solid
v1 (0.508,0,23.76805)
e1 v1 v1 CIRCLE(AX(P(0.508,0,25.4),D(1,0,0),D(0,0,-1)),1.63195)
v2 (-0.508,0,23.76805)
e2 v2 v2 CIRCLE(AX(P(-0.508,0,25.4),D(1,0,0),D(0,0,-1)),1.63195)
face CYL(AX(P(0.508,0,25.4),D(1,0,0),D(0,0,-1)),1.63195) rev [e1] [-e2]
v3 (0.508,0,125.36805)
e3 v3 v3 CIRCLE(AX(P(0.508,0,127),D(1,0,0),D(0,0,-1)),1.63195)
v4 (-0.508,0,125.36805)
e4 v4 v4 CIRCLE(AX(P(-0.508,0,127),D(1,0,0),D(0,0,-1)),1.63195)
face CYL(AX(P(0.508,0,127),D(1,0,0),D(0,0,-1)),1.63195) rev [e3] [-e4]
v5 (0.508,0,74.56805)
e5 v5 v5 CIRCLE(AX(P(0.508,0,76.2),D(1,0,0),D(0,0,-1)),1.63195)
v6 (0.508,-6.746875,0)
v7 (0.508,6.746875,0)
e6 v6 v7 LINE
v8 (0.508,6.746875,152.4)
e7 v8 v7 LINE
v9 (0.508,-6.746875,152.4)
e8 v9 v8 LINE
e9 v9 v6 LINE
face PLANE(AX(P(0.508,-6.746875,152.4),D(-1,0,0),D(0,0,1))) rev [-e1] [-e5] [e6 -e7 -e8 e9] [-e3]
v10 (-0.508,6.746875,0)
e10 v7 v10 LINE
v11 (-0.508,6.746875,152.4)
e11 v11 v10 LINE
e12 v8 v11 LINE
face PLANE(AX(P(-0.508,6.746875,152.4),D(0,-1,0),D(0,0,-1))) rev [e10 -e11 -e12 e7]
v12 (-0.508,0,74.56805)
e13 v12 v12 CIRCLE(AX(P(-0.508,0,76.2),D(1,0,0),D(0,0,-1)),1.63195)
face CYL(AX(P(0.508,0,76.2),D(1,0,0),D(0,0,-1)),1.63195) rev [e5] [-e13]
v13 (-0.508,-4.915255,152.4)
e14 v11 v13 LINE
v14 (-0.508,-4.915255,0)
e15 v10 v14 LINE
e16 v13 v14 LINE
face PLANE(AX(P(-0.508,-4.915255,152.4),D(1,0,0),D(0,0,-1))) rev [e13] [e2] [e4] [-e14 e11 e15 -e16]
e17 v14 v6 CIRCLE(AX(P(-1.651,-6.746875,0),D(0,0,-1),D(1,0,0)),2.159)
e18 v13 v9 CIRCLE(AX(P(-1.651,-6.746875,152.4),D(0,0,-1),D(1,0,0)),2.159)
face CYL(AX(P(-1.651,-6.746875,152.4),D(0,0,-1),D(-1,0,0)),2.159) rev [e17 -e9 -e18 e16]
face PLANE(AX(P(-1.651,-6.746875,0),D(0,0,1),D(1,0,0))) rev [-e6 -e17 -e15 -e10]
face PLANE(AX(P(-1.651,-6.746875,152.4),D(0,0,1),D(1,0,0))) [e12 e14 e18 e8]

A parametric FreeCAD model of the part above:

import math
import FreeCAD as App
import Part
import Sketcher
Q = App.Units.Quantity

doc = App.newDocument("Part")
body = doc.addObject("PartDesign::Body", "Body")

sketch1 = doc.addObject("Sketcher::SketchObject", "Sketch")
body.addObject(sketch1)
sketch1.AttachmentSupport = (doc.XY_Plane, [""])
sketch1.MapMode = "FlatFace"
sketch1.addGeometry([
    Part.LineSegment(App.Vector(-0.5, 6.7, 0), App.Vector(-0.5, -4.9, 0)),
    Part.ArcOfCircle(Part.Circle(App.Vector(-1.7, -6.7, 0), App.Vector(0, 0, 1), 2.2), math.radians(0), math.radians(58)),
    Part.LineSegment(App.Vector(0.5, -6.7, 0), App.Vector(0.5, 6.7, 0)),
    Part.LineSegment(App.Vector(0.5, 6.7, 0), App.Vector(-0.5, 6.7, 0)),
], False)
sketch1.addConstraint([
    Sketcher.Constraint("Coincident", 0, 2, 1, 2),
    Sketcher.Constraint("Tangent", 1, 1, 2, 1),
    Sketcher.Constraint("Coincident", 2, 2, 3, 1),
    Sketcher.Constraint("Coincident", 3, 2, 0, 1),
    Sketcher.Constraint("Vertical", 0),
    Sketcher.Constraint("Vertical", 2),
    Sketcher.Constraint("Horizontal", 3),
    Sketcher.Constraint("Symmetric", 1, 1, 3, 2, -1, 1),
    Sketcher.Constraint("Radius", 1, Q("0.085 in")),
    Sketcher.Constraint("DistanceX", 3, 2, 3, 1, Q("0.04 in")),
    Sketcher.Constraint("DistanceY", 2, 1, 2, 2, Q("0.53125 in")),
])
pad1 = doc.addObject("PartDesign::Pad", "Pad")
body.addObject(pad1)
pad1.Profile = sketch1
pad1.Length = Q("6 in")

sketch2 = doc.addObject("Sketcher::SketchObject", "Sketch001")
body.addObject(sketch2)
sketch2.AttachmentSupport = (doc.YZ_Plane, [""])
sketch2.MapMode = "FlatFace"
sketch2.AttachmentOffset = App.Placement(App.Vector(0, 0, 0.02 * 25.4), App.Rotation())
sketch2.addGeometry([
    Part.Circle(App.Vector(0, 25.4, 0), App.Vector(0, 0, 1), 1.6),
    Part.Circle(App.Vector(0, 76.2, 0), App.Vector(0, 0, 1), 1.6),
    Part.Circle(App.Vector(0, 177.8, 0), App.Vector(0, 0, 1), 1.6),
    Part.Circle(App.Vector(0, 127, 0), App.Vector(0, 0, 1), 1.6),
    Part.Circle(App.Vector(0, 228.6, 0), App.Vector(0, 0, 1), 1.6),
    Part.Circle(App.Vector(0, 279.4, 0), App.Vector(0, 0, 1), 1.6),
], False)
sketch2.addConstraint([
    Sketcher.Constraint("Equal", 0, 1),
    Sketcher.Constraint("Equal", 1, 2),
    Sketcher.Constraint("Equal", 2, 3),
    Sketcher.Constraint("Equal", 3, 4),
    Sketcher.Constraint("Equal", 4, 5),
    Sketcher.Constraint("PointOnObject", 0, 3, -2),
    Sketcher.Constraint("PointOnObject", 1, 3, -2),
    Sketcher.Constraint("PointOnObject", 2, 3, -2),
    Sketcher.Constraint("PointOnObject", 3, 3, -2),
    Sketcher.Constraint("PointOnObject", 4, 3, -2),
    Sketcher.Constraint("PointOnObject", 5, 3, -2),
    Sketcher.Constraint("DistanceY", -1, 1, 0, 3, Q("1 in")),
    Sketcher.Constraint("DistanceY", -1, 1, 1, 3, Q("3 in")),
    Sketcher.Constraint("DistanceY", -1, 1, 2, 3, Q("7 in")),
    Sketcher.Constraint("DistanceY", -1, 1, 3, 3, Q("5 in")),
    Sketcher.Constraint("DistanceY", -1, 1, 4, 3, Q("9 in")),
    Sketcher.Constraint("DistanceY", -1, 1, 5, 3, Q("11 in")),
    Sketcher.Constraint("Diameter", 0, Q("0.1285 in")),
])
doc.recompute()
hole = doc.addObject("PartDesign::Hole", "Hole")
body.addObject(hole)
hole.Profile = sketch2
hole.ThreadType = "None"
hole.Diameter = Q("0.1285 in")
hole.DepthType = "Dimension"
hole.Depth = Q("0.06 in")
hole.DrillPoint = "Angled"
hole.DrillPointAngle = 118

doc.recompute()
